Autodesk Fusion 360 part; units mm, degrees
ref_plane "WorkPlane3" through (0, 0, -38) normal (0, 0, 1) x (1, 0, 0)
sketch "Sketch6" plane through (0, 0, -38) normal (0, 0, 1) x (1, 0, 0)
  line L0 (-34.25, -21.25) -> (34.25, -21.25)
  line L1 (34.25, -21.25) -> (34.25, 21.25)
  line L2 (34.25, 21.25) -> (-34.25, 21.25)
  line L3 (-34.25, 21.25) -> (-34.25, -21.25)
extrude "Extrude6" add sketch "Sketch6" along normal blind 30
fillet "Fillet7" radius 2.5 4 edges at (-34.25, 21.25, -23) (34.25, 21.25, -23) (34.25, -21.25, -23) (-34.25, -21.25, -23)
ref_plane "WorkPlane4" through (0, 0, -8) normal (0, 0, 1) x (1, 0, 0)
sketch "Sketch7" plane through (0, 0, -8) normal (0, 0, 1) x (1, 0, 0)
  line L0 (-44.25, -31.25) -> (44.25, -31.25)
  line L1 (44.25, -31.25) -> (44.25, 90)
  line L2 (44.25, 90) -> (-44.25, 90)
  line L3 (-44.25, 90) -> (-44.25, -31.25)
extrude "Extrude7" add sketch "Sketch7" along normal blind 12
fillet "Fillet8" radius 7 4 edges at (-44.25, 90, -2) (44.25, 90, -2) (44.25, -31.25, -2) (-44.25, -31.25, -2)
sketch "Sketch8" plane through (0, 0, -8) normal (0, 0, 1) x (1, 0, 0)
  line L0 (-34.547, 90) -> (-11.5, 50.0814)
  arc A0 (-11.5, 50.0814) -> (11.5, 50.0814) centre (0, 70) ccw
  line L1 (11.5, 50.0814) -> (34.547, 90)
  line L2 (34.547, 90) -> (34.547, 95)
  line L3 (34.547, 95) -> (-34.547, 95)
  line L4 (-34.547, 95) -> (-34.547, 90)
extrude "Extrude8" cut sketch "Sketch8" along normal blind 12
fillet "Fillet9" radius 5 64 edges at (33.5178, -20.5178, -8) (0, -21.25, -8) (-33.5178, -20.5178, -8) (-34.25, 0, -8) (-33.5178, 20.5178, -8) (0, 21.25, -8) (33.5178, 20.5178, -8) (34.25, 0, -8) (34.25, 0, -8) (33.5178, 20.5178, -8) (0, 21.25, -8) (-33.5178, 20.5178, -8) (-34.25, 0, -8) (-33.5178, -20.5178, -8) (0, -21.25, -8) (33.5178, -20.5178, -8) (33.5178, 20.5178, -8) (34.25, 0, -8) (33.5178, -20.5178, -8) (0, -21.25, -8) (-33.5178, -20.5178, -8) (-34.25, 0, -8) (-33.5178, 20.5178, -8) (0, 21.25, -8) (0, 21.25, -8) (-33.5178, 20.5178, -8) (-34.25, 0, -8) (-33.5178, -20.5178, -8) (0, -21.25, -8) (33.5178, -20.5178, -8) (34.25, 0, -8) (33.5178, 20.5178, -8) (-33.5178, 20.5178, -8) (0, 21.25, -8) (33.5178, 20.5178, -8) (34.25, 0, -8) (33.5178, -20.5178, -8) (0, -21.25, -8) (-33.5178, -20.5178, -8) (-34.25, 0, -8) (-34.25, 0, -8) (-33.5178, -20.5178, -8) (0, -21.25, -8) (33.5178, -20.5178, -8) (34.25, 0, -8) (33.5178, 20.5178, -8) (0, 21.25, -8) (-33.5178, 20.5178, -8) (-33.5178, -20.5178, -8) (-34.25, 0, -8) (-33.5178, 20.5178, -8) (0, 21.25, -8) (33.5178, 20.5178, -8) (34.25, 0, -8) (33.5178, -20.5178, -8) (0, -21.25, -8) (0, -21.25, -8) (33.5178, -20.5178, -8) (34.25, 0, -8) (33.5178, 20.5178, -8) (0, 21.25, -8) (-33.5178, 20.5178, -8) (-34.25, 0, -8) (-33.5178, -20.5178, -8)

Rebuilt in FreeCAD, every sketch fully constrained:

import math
import FreeCAD as App
import Part
import Sketcher
from FreeCAD import Vector
Q = App.Units.Quantity


def edges_at(feature, points):
    """Names of the edges that pass closest to the given points."""
    edges = feature.Shape.Edges
    near = lambda p: min(range(len(edges)), key=lambda i: edges[i].distToShape(Part.Vertex(*p))[0])
    return sorted({f"Edge{near(p) + 1}" for p in points})


def add_polygon(sketch, points):
    """Adds a closed chain of lines whose ends are joined by coincident constraints."""
    first, n = sketch.GeometryCount, len(points)
    for a, b in zip(points, points[1:] + points[:1]):
        sketch.addGeometry(Part.LineSegment(App.Vector(*a, 0), App.Vector(*b, 0)), False)
    for i in range(n):
        sketch.addConstraint(Sketcher.Constraint("Coincident", first + i, 2, first + (i + 1) % n, 1))

doc = App.newDocument("Part")
body = doc.addObject("PartDesign::Body", "Body")

sketch1 = body.newObject("Sketcher::SketchObject", "Sketch")
sketch1.AttachmentSupport = (doc.getObject("XY_Plane"), [""])
sketch1.MapMode = "FlatFace"
sketch1.AttachmentOffset = App.Placement(Vector(0, 0, -38), App.Rotation())
add_polygon(sketch1, [(-34, 21), (-34, -21), (34, -21), (34, 21)])
sketch1.addConstraint(Sketcher.Constraint("Vertical", 0))
sketch1.addConstraint(Sketcher.Constraint("Horizontal", 1))
sketch1.addConstraint(Sketcher.Constraint("Vertical", 2))
sketch1.addConstraint(Sketcher.Constraint("Horizontal", 3))
sketch1.addConstraint(Sketcher.Constraint("Symmetric", 0, 2, 2, 2, -1, 1))
sketch1.addConstraint(Sketcher.Constraint("DistanceX", 1, 1, 1, 2, 68.5))
sketch1.addConstraint(Sketcher.Constraint("DistanceY", 0, 2, 0, 1, 42.5))
pad1 = body.newObject("PartDesign::Pad", "Pad")
pad1.Profile = sketch1
pad1.Length = 30
doc.recompute()

fillet = body.newObject("PartDesign::Fillet", "Fillet")
fillet.Base = (pad1, edges_at(pad1, [
    (-34.25, 21.25, -23),
    (34.25, 21.25, -23),
    (34.25, -21.25, -23),
    (-34.25, -21.25, -23),
]))
fillet.Radius = 2.5

sketch2 = body.newObject("Sketcher::SketchObject", "Sketch001")
sketch2.AttachmentSupport = (doc.getObject("XY_Plane"), [""])
sketch2.MapMode = "FlatFace"
sketch2.AttachmentOffset = App.Placement(Vector(0, 0, -8), App.Rotation())
add_polygon(sketch2, [(-44, 90), (-44, -31), (44, -31), (44, 90)])
sketch2.addConstraint(Sketcher.Constraint("Vertical", 0))
sketch2.addConstraint(Sketcher.Constraint("Horizontal", 1))
sketch2.addConstraint(Sketcher.Constraint("Vertical", 2))
sketch2.addConstraint(Sketcher.Constraint("Horizontal", 3))
sketch2.addConstraint(Sketcher.Constraint("DistanceX", 1, 1, 1, 2, 88.5))
sketch2.addConstraint(Sketcher.Constraint("DistanceY", -1, 1, 2, 2, 90.0))
sketch2.addConstraint(Sketcher.Constraint("DistanceY", 0, 2, 0, 1, 121.25))
sketch2.addConstraint(Sketcher.Constraint("DistanceX", 0, 2, -1, 1, 44.25))
pad2 = body.newObject("PartDesign::Pad", "Pad001")
pad2.Profile = sketch2
pad2.Length = 12
doc.recompute()

fillet2 = body.newObject("PartDesign::Fillet", "Fillet001")
fillet2.Base = (pad2, edges_at(pad2, [
    (-44.25, 90, -2),
    (44.25, 90, -2),
    (44.25, -31.25, -2),
    (-44.25, -31.25, -2),
]))
fillet2.Radius = 7

sketch3 = body.newObject("Sketcher::SketchObject", "Sketch002")
sketch3.AttachmentSupport = (doc.getObject("XY_Plane"), [""])
sketch3.MapMode = "FlatFace"
sketch3.AttachmentOffset = App.Placement(Vector(0, 0, -8), App.Rotation())
sketch3.addGeometry(Part.LineSegment(Vector(-35, 95, 0), Vector(-35, 90, 0)), False)
sketch3.addGeometry(Part.LineSegment(Vector(-35, 90, 0), Vector(-12, 50, 0)), False)
sketch3.addGeometry(Part.ArcOfCircle(Part.Circle(Vector(0, 70, 0), Vector(0, 0, 1), 23), math.radians(-120), math.radians(-60)), False)
sketch3.addGeometry(Part.LineSegment(Vector(12, 50, 0), Vector(35, 90, 0)), False)
sketch3.addGeometry(Part.LineSegment(Vector(35, 90, 0), Vector(35, 95, 0)), False)
sketch3.addGeometry(Part.LineSegment(Vector(35, 95, 0), Vector(-35, 95, 0)), False)
sketch3.addConstraint(Sketcher.Constraint("Coincident", 0, 2, 1, 1))
sketch3.addConstraint(Sketcher.Constraint("Coincident", 1, 2, 2, 1))
sketch3.addConstraint(Sketcher.Constraint("Coincident", 2, 2, 3, 1))
sketch3.addConstraint(Sketcher.Constraint("Coincident", 3, 2, 4, 1))
sketch3.addConstraint(Sketcher.Constraint("Coincident", 4, 2, 5, 1))
sketch3.addConstraint(Sketcher.Constraint("Coincident", 5, 2, 0, 1))
sketch3.addConstraint(Sketcher.Constraint("Vertical", 0))
sketch3.addConstraint(Sketcher.Constraint("Vertical", 4))
sketch3.addConstraint(Sketcher.Constraint("Horizontal", 5))
sketch3.addConstraint(Sketcher.Constraint("Symmetric", 1, 2, 2, 2, -2))
sketch3.addConstraint(Sketcher.Constraint("Symmetric", 0, 2, 3, 2, -2))
sketch3.addConstraint(Sketcher.Constraint("Radius", 2, 23.0))
sketch3.addConstraint(Sketcher.Constraint("DistanceY", 0, 2, 0, 1, 5.0))
sketch3.addConstraint(Sketcher.Constraint("Angle", 1, Q("-60 deg")))
sketch3.addConstraint(Sketcher.Constraint("DistanceY", -1, 1, 2, 3, 70.0))
sketch3.addConstraint(Sketcher.Constraint("DistanceY", -1, 1, 0, 2, 90.0))
sketch3.addConstraint(Sketcher.Constraint("DistanceX", 1, 2, 2, 2, 23.0))
pocket1 = body.newObject("PartDesign::Pocket", "Pocket")
pocket1.Profile = sketch3
pocket1.Length = 12
pocket1.Reversed = True
doc.recompute()

fillet3 = body.newObject("PartDesign::Fillet", "Fillet002")
fillet3.Base = (pocket1, edges_at(pocket1, [
    (33.518, -20.518, -8),
    (0, -21.25, -8),
    (-33.518, -20.518, -8),
    (-34.25, 0, -8),
    (-33.518, 20.518, -8),
    (0, 21.25, -8),
    (33.518, 20.518, -8),
    (34.25, 0, -8),
    (34.25, 0, -8),
    (33.518, 20.518, -8),
    (0, 21.25, -8),
    (-33.518, 20.518, -8),
    (-34.25, 0, -8),
    (-33.518, -20.518, -8),
    (0, -21.25, -8),
    (33.518, -20.518, -8),
    (33.518, 20.518, -8),
    (34.25, 0, -8),
    (33.518, -20.518, -8),
    (0, -21.25, -8),
    (-33.518, -20.518, -8),
    (-34.25, 0, -8),
    (-33.518, 20.518, -8),
    (0, 21.25, -8),
    (0, 21.25, -8),
    (-33.518, 20.518, -8),
    (-34.25, 0, -8),
    (-33.518, -20.518, -8),
    (0, -21.25, -8),
    (33.518, -20.518, -8),
    (34.25, 0, -8),
    (33.518, 20.518, -8),
    (-33.518, 20.518, -8),
    (0, 21.25, -8),
    (33.518, 20.518, -8),
    (34.25, 0, -8),
    (33.518, -20.518, -8),
    (0, -21.25, -8),
    (-33.518, -20.518, -8),
    (-34.25, 0, -8),
    (-34.25, 0, -8),
    (-33.518, -20.518, -8),
    (0, -21.25, -8),
    (33.518, -20.518, -8),
    (34.25, 0, -8),
    (33.518, 20.518, -8),
    (0, 21.25, -8),
    (-33.518, 20.518, -8),
    (-33.518, -20.518, -8),
    (-34.25, 0, -8),
    (-33.518, 20.518, -8),
    (0, 21.25, -8),
    (33.518, 20.518, -8),
    (34.25, 0, -8),
    (33.518, -20.518, -8),
    (0, -21.25, -8),
    (0, -21.25, -8),
    (33.518, -20.518, -8),
    (34.25, 0, -8),
    (33.518, 20.518, -8),
    (0, 21.25, -8),
    (-33.518, 20.518, -8),
    (-34.25, 0, -8),
    (-33.518, -20.518, -8),
]))
fillet3.Radius = 5

doc.recompute()
